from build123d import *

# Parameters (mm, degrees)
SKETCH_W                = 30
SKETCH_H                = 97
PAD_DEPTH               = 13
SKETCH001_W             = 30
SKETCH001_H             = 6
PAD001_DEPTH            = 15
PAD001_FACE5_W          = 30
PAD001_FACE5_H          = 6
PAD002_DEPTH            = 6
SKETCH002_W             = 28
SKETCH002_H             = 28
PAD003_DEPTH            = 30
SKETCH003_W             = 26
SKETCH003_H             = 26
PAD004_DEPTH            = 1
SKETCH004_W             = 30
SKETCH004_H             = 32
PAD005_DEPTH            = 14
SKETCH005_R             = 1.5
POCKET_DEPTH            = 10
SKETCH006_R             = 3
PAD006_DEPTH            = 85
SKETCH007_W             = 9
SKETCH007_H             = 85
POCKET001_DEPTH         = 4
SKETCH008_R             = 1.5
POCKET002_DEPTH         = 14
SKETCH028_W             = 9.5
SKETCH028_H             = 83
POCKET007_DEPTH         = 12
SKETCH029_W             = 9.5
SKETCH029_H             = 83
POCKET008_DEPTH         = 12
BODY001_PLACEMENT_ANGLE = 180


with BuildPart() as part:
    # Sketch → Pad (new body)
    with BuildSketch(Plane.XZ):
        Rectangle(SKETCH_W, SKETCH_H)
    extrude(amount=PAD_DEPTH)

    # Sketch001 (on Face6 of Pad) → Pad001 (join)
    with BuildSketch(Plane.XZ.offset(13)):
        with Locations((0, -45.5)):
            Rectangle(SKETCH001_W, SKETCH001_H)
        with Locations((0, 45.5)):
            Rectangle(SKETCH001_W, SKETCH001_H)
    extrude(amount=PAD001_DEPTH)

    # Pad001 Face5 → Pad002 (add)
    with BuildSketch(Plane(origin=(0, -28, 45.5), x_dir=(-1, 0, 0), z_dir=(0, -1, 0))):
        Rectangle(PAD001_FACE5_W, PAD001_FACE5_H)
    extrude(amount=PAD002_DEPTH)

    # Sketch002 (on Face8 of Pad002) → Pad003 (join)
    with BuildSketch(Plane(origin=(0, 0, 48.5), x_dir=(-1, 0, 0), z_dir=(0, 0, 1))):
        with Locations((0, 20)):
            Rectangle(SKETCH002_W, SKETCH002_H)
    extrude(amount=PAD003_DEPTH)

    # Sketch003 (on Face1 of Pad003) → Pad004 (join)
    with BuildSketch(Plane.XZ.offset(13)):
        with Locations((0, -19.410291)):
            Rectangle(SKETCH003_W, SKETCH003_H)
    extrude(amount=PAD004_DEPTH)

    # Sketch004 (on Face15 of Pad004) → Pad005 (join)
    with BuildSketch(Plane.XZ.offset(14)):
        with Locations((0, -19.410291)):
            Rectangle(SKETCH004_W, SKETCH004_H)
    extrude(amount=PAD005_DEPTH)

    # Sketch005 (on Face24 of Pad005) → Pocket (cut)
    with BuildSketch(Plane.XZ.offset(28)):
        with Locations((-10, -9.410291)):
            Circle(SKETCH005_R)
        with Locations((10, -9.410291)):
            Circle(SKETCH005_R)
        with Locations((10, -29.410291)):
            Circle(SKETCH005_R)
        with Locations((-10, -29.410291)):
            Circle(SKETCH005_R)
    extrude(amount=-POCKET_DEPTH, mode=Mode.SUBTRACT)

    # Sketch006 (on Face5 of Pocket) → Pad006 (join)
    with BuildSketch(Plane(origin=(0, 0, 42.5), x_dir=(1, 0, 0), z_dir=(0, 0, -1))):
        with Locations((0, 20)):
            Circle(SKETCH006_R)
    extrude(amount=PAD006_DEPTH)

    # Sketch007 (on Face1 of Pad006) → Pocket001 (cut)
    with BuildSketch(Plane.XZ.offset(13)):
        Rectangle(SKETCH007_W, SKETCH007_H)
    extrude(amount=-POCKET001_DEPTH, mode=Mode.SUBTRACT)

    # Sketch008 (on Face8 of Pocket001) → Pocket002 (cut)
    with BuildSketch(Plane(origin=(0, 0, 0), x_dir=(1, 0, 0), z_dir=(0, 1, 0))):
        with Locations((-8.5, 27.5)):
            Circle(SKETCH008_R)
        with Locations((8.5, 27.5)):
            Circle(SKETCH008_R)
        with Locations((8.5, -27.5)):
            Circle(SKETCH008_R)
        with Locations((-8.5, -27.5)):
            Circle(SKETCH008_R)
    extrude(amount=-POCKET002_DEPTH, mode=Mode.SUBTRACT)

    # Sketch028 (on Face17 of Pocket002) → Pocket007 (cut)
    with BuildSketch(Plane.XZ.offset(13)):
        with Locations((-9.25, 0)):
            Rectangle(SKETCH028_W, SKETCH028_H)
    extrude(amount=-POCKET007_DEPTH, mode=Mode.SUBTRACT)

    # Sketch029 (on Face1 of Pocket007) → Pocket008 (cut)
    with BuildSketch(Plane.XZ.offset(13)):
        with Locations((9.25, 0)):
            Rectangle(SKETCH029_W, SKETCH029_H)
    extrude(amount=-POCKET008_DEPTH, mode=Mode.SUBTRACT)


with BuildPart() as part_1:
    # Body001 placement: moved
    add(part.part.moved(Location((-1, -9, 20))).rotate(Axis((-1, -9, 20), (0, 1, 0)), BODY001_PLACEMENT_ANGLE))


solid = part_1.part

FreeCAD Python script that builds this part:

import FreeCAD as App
import Part
import Sketcher

V = App.Vector

doc = App.newDocument("Part")
body = doc.addObject("PartDesign::Body", "Body")

# Sketch on XZ plane
sketch1 = body.newObject("Sketcher::SketchObject", "Sketch")
sketch1.AttachmentSupport = (doc.getObject("XZ_Plane"), [""])
sketch1.MapMode = "FlatFace"
sketch1.addGeometry([
    Part.LineSegment(V(-15, 48, 0), V(-15, -48, 0)),
    Part.LineSegment(V(-15, -48, 0), V(15, -48, 0)),
    Part.LineSegment(V(15, -48, 0), V(15, 48, 0)),
    Part.LineSegment(V(15, 48, 0), V(-15, 48, 0)),
], False)
sketch1.addConstraint([
    Sketcher.Constraint("Coincident", 0, 2, 1, 1),
    Sketcher.Constraint("Coincident", 1, 2, 2, 1),
    Sketcher.Constraint("Coincident", 2, 2, 3, 1),
    Sketcher.Constraint("Coincident", 3, 2, 0, 1),
    Sketcher.Constraint("Vertical", 0),
    Sketcher.Constraint("Horizontal", 1),
    Sketcher.Constraint("Vertical", 2),
    Sketcher.Constraint("Horizontal", 3),
    Sketcher.Constraint("Symmetric", 0, 2, 2, 2, -1, 1),
    Sketcher.Constraint("DistanceX", 1, 1, 1, 2, 30.0),
    Sketcher.Constraint("DistanceY", 0, 2, 0, 1, 97.0),
])
pad1 = body.newObject("PartDesign::Pad", "Pad")
pad1.Profile = sketch1
pad1.Length = 13

# Sketch on XZ plane
sketch2 = body.newObject("Sketcher::SketchObject", "Sketch001")
sketch2.AttachmentSupport = (doc.getObject("XZ_Plane"), [""])
sketch2.MapMode = "FlatFace"
sketch2.AttachmentOffset = App.Placement(V(0, 0, 13), App.Rotation())
sketch2.addGeometry([
    Part.LineSegment(V(-15, -42, 0), V(-15, -48, 0)),  # 0
    Part.LineSegment(V(-15, -48, 0), V(15, -48, 0)),  # 1
    Part.LineSegment(V(15, -48, 0), V(15, -42, 0)),  # 2
    Part.LineSegment(V(15, -42, 0), V(-15, -42, 0)),  # 3
    Part.LineSegment(V(-15, 48, 0), V(-15, 42, 0)),  # 4
    Part.LineSegment(V(-15, 42, 0), V(15, 42, 0)),  # 5
    Part.LineSegment(V(15, 42, 0), V(15, 48, 0)),  # 6
    Part.LineSegment(V(15, 48, 0), V(-15, 48, 0)),  # 7
], False)
sketch2.addConstraint([
    Sketcher.Constraint("Coincident", 0, 2, 1, 1),
    Sketcher.Constraint("Coincident", 1, 2, 2, 1),
    Sketcher.Constraint("Coincident", 2, 2, 3, 1),
    Sketcher.Constraint("Coincident", 3, 2, 0, 1),
    Sketcher.Constraint("Coincident", 4, 2, 5, 1),
    Sketcher.Constraint("Coincident", 5, 2, 6, 1),
    Sketcher.Constraint("Coincident", 6, 2, 7, 1),
    Sketcher.Constraint("Coincident", 7, 2, 4, 1),
    Sketcher.Constraint("Vertical", 0),
    Sketcher.Constraint("Horizontal", 1),
    Sketcher.Constraint("Vertical", 2),
    Sketcher.Constraint("Horizontal", 3),
    Sketcher.Constraint("Vertical", 4),
    Sketcher.Constraint("Horizontal", 5),
    Sketcher.Constraint("Vertical", 6),
    Sketcher.Constraint("Horizontal", 7),
    Sketcher.Constraint("Symmetric", 2, 2, 4, 2, -1, 1),
    Sketcher.Constraint("Symmetric", 0, 2, 6, 2, -1, 1),
    Sketcher.Constraint("Vertical", 3, 2, 4, 2),
    Sketcher.Constraint("DistanceX", 1, 1, 1, 2, 30.0),
    Sketcher.Constraint("DistanceY", 0, 2, 0, 1, 6.0),
    Sketcher.Constraint("DistanceY", 3, 2, 4, 2, 85.0),
])
pad2 = body.newObject("PartDesign::Pad", "Pad001")
pad2.Profile = sketch2
pad2.Length = 15

# Sketch on XZ plane
sketch3 = body.newObject("Sketcher::SketchObject", "Sketch002")
sketch3.AttachmentSupport = (doc.getObject("XZ_Plane"), [""])
sketch3.MapMode = "FlatFace"
sketch3.AttachmentOffset = App.Placement(V(0, 0, 28), App.Rotation())
sketch3.addGeometry([
    Part.LineSegment(V(15, 42, 0), V(15, 48, 0)),
    Part.LineSegment(V(15, 48, 0), V(-15, 48, 0)),
    Part.LineSegment(V(-15, 48, 0), V(-15, 42, 0)),
    Part.LineSegment(V(-15, 42, 0), V(15, 42, 0)),
], False)
sketch3.addConstraint([
    Sketcher.Constraint("Coincident", 0, 2, 1, 1),
    Sketcher.Constraint("Coincident", 1, 2, 2, 1),
    Sketcher.Constraint("Coincident", 2, 2, 3, 1),
    Sketcher.Constraint("Coincident", 3, 2, 0, 1),
    Sketcher.Constraint("Vertical", 0),
    Sketcher.Constraint("Horizontal", 1),
    Sketcher.Constraint("Vertical", 2),
    Sketcher.Constraint("Horizontal", 3),
    Sketcher.Constraint("DistanceX", 1, 2, 1, 1, 30.0),
    Sketcher.Constraint("DistanceY", 0, 1, 0, 2, 6.0),
    Sketcher.Constraint("DistanceX", -1, 1, 0, 2, 15.0),
    Sketcher.Constraint("DistanceY", -1, 1, 0, 2, 48.5),
])
pad3 = body.newObject("PartDesign::Pad", "Pad002")
pad3.Profile = sketch3
pad3.Length = 6

# Sketch on XY plane
sketch4 = body.newObject("Sketcher::SketchObject", "Sketch003")
sketch4.AttachmentSupport = (doc.getObject("XY_Plane"), [""])
sketch4.MapMode = "FlatFace"
sketch4.AttachmentOffset = App.Placement(V(0, 0, 48.5), App.Rotation())
sketch4.addGeometry([
    Part.LineSegment(V(14, -34, 0), V(14, -6, 0)),
    Part.LineSegment(V(14, -6, 0), V(-14, -6, 0)),
    Part.LineSegment(V(-14, -6, 0), V(-14, -34, 0)),
    Part.LineSegment(V(-14, -34, 0), V(14, -34, 0)),
], False)
sketch4.addConstraint([
    Sketcher.Constraint("Coincident", 0, 2, 1, 1),
    Sketcher.Constraint("Coincident", 1, 2, 2, 1),
    Sketcher.Constraint("Coincident", 2, 2, 3, 1),
    Sketcher.Constraint("Coincident", 3, 2, 0, 1),
    Sketcher.Constraint("Vertical", 0),
    Sketcher.Constraint("Horizontal", 1),
    Sketcher.Constraint("Vertical", 2),
    Sketcher.Constraint("Horizontal", 3),
    Sketcher.Constraint("Equal", 3, 0),
    Sketcher.Constraint("DistanceX", 1, 2, 1, 1, 28.0),
    Sketcher.Constraint("DistanceX", -1, 1, 0, 2, 14.0),
    Sketcher.Constraint("DistanceY", 0, 2, -1, 1, 6.0),
])
pad4 = body.newObject("PartDesign::Pad", "Pad003")
pad4.Profile = sketch4
pad4.Length = 30

# Sketch on XZ plane
sketch5 = body.newObject("Sketcher::SketchObject", "Sketch004")
sketch5.AttachmentSupport = (doc.getObject("XZ_Plane"), [""])
sketch5.MapMode = "FlatFace"
sketch5.AttachmentOffset = App.Placement(V(0, 0, 13), App.Rotation())
sketch5.addGeometry([
    Part.LineSegment(V(-13, -6, 0), V(-13, -32, 0)),
    Part.LineSegment(V(-13, -32, 0), V(13, -32, 0)),
    Part.LineSegment(V(13, -32, 0), V(13, -6, 0)),
    Part.LineSegment(V(13, -6, 0), V(-13, -6, 0)),
], False)
sketch5.addConstraint([
    Sketcher.Constraint("Coincident", 0, 2, 1, 1),
    Sketcher.Constraint("Coincident", 1, 2, 2, 1),
    Sketcher.Constraint("Coincident", 2, 2, 3, 1),
    Sketcher.Constraint("Coincident", 3, 2, 0, 1),
    Sketcher.Constraint("Vertical", 0),
    Sketcher.Constraint("Horizontal", 1),
    Sketcher.Constraint("Vertical", 2),
    Sketcher.Constraint("Horizontal", 3),
    Sketcher.Constraint("Equal", 3, 0),
    Sketcher.Constraint("DistanceX", 1, 1, 1, 2, 26.0),
    Sketcher.Constraint("DistanceX", 0, 2, -1, 1, 13.0),
    Sketcher.Constraint("DistanceY", 0, 2, -1, 1, 32.410291),
])
pad5 = body.newObject("PartDesign::Pad", "Pad004")
pad5.Profile = sketch5
pad5.Length = 1

# Sketch on XZ plane
sketch6 = body.newObject("Sketcher::SketchObject", "Sketch005")
sketch6.AttachmentSupport = (doc.getObject("XZ_Plane"), [""])
sketch6.MapMode = "FlatFace"
sketch6.AttachmentOffset = App.Placement(V(0, 0, 14), App.Rotation())
sketch6.addGeometry([
    Part.LineSegment(V(-15, -3, 0), V(-15, -35, 0)),
    Part.LineSegment(V(-15, -35, 0), V(15, -35, 0)),
    Part.LineSegment(V(15, -35, 0), V(15, -3, 0)),
    Part.LineSegment(V(15, -3, 0), V(-15, -3, 0)),
], False)
sketch6.addConstraint([
    Sketcher.Constraint("Coincident", 0, 2, 1, 1),
    Sketcher.Constraint("Coincident", 1, 2, 2, 1),
    Sketcher.Constraint("Coincident", 2, 2, 3, 1),
    Sketcher.Constraint("Coincident", 3, 2, 0, 1),
    Sketcher.Constraint("Vertical", 0),
    Sketcher.Constraint("Horizontal", 1),
    Sketcher.Constraint("Vertical", 2),
    Sketcher.Constraint("Horizontal", 3),
    Sketcher.Constraint("DistanceX", 1, 1, 1, 2, 30.0),
    Sketcher.Constraint("DistanceY", 0, 2, 0, 1, 32.0),
    Sketcher.Constraint("DistanceX", 0, 2, -1, 1, 15.0),
    Sketcher.Constraint("DistanceY", 0, 2, -1, 1, 35.410291),
])
pad6 = body.newObject("PartDesign::Pad", "Pad005")
pad6.Profile = sketch6
pad6.Length = 14

# Sketch on XZ plane
sketch7 = body.newObject("Sketcher::SketchObject", "Sketch006")
sketch7.AttachmentSupport = (doc.getObject("XZ_Plane"), [""])
sketch7.MapMode = "FlatFace"
sketch7.AttachmentOffset = App.Placement(V(0, 0, 28), App.Rotation())
sketch7.addGeometry([
    Part.Circle(V(-10, -9.4, 0), V(0, 0, 1), 1.5),
    Part.Circle(V(10, -9.4, 0), V(0, 0, 1), 1.5),
    Part.Circle(V(10, -29.4, 0), V(0, 0, 1), 1.5),
    Part.Circle(V(-10, -29.4, 0), V(0, 0, 1), 1.5),
], False)
sketch7.addConstraint([
    Sketcher.Constraint("Equal", 0, 1),
    Sketcher.Constraint("Equal", 1, 2),
    Sketcher.Constraint("Equal", 2, 3),
    Sketcher.Constraint("Symmetric", 0, 3, 1, 3, -2),
    Sketcher.Constraint("Symmetric", 2, 3, 3, 3, -2),
    Sketcher.Constraint("Vertical", 1, 3, 2, 3),
    Sketcher.Constraint("Diameter", 0, 3.0),
    Sketcher.Constraint("DistanceX", 0, 3, -1, 1, 10.0),
    Sketcher.Constraint("DistanceY", 2, 3, 1, 3, 20.0),
    Sketcher.Constraint("DistanceY", 0, 3, -1, 1, 9.410291),
])
pocket1 = body.newObject("PartDesign::Pocket", "Pocket")
pocket1.Profile = sketch7
pocket1.Length = 10

# Sketch on XY plane
sketch8 = body.newObject("Sketcher::SketchObject", "Sketch007")
sketch8.AttachmentSupport = (doc.getObject("XY_Plane"), [""])
sketch8.MapMode = "FlatFace"
sketch8.AttachmentOffset = App.Placement(V(0, 0, 42.5), App.Rotation())
sketch8.addGeometry(Part.Circle(V(0, -20, 0), V(0, 0, 1), 3), False)
sketch8.addConstraint([
    Sketcher.Constraint("PointOnObject", 0, 3, -2),
    Sketcher.Constraint("Diameter", 0, 6.0),
    Sketcher.Constraint("DistanceY", 0, 3, -1, 1, 20.0),
])
pad7 = body.newObject("PartDesign::Pad", "Pad006")
pad7.Profile = sketch8
pad7.Length = 85
pad7.Reversed = True

# Sketch on XZ plane
sketch9 = body.newObject("Sketcher::SketchObject", "Sketch008")
sketch9.AttachmentSupport = (doc.getObject("XZ_Plane"), [""])
sketch9.MapMode = "FlatFace"
sketch9.AttachmentOffset = App.Placement(V(0, 0, 13), App.Rotation())
sketch9.addGeometry([
    Part.LineSegment(V(-4, 42, 0), V(-4, -42, 0)),
    Part.LineSegment(V(-4, -42, 0), V(4, -42, 0)),
    Part.LineSegment(V(4, -42, 0), V(4, 42, 0)),
    Part.LineSegment(V(4, 42, 0), V(-4, 42, 0)),
], False)
sketch9.addConstraint([
    Sketcher.Constraint("Coincident", 0, 2, 1, 1),
    Sketcher.Constraint("Coincident", 1, 2, 2, 1),
    Sketcher.Constraint("Coincident", 2, 2, 3, 1),
    Sketcher.Constraint("Coincident", 3, 2, 0, 1),
    Sketcher.Constraint("Vertical", 0),
    Sketcher.Constraint("Horizontal", 1),
    Sketcher.Constraint("Vertical", 2),
    Sketcher.Constraint("Horizontal", 3),
    Sketcher.Constraint("Symmetric", 0, 2, 2, 2, -1, 1),
    Sketcher.Constraint("DistanceX", 1, 1, 1, 2, 9.0),
    Sketcher.Constraint("DistanceY", 0, 2, 0, 1, 85.0),
])
pocket2 = body.newObject("PartDesign::Pocket", "Pocket001")
pocket2.Profile = sketch9
pocket2.Length = 4

# Sketch on XZ plane
sketch10 = body.newObject("Sketcher::SketchObject", "Sketch009")
sketch10.AttachmentSupport = (doc.getObject("XZ_Plane"), [""])
sketch10.MapMode = "FlatFace"
sketch10.addGeometry([
    Part.Circle(V(-8.5, -27.5, 0), V(0, 0, 1), 1.5),
    Part.Circle(V(8.5, -27.5, 0), V(0, 0, 1), 1.5),
    Part.Circle(V(8.5, 27.5, 0), V(0, 0, 1), 1.5),
    Part.Circle(V(-8.5, 27.5, 0), V(0, 0, 1), 1.5),
], False)
sketch10.addConstraint([
    Sketcher.Constraint("Equal", 0, 1),
    Sketcher.Constraint("Equal", 1, 2),
    Sketcher.Constraint("Equal", 2, 3),
    Sketcher.Constraint("Symmetric", 0, 3, 2, 3, -1, 1),
    Sketcher.Constraint("Symmetric", 1, 3, 3, 3, -1, 1),
    Sketcher.Constraint("Symmetric", 0, 3, 1, 3, -2),
    Sketcher.Constraint("Diameter", 0, 3.0),
    Sketcher.Constraint("DistanceX", 0, 3, 1, 3, 17.0),
    Sketcher.Constraint("DistanceY", 1, 3, 2, 3, 55.0),
])
pocket3 = body.newObject("PartDesign::Pocket", "Pocket002")
pocket3.Profile = sketch10
pocket3.Length = 14
pocket3.Reversed = True

# Sketch on XZ plane
sketch11 = body.newObject("Sketcher::SketchObject", "Sketch010")
sketch11.AttachmentSupport = (doc.getObject("XZ_Plane"), [""])
sketch11.MapMode = "FlatFace"
sketch11.AttachmentOffset = App.Placement(V(0, 0, 13), App.Rotation())
sketch11.addGeometry([
    Part.LineSegment(V(-14, 42, 0), V(-14, -42, 0)),
    Part.LineSegment(V(-14, -42, 0), V(-4, -42, 0)),
    Part.LineSegment(V(-4, -42, 0), V(-4, 42, 0)),
    Part.LineSegment(V(-4, 42, 0), V(-14, 42, 0)),
], False)
sketch11.addConstraint([
    Sketcher.Constraint("Coincident", 0, 2, 1, 1),
    Sketcher.Constraint("Coincident", 1, 2, 2, 1),
    Sketcher.Constraint("Coincident", 2, 2, 3, 1),
    Sketcher.Constraint("Coincident", 3, 2, 0, 1),
    Sketcher.Constraint("Vertical", 0),
    Sketcher.Constraint("Horizontal", 1),
    Sketcher.Constraint("Vertical", 2),
    Sketcher.Constraint("Horizontal", 3),
    Sketcher.Constraint("DistanceY", 0, 2, 0, 1, 83.0),
    Sketcher.Constraint("DistanceX", 1, 1, 1, 2, 9.5),
    Sketcher.Constraint("DistanceX", 0, 2, -1, 1, 14.0),
    Sketcher.Constraint("DistanceY", 0, 2, -1, 1, 41.5),
])
pocket4 = body.newObject("PartDesign::Pocket", "Pocket003")
pocket4.Profile = sketch11
pocket4.Length = 12

# Sketch on XZ plane
sketch12 = body.newObject("Sketcher::SketchObject", "Sketch011")
sketch12.AttachmentSupport = (doc.getObject("XZ_Plane"), [""])
sketch12.MapMode = "FlatFace"
sketch12.AttachmentOffset = App.Placement(V(0, 0, 13), App.Rotation())
sketch12.addGeometry([
    Part.LineSegment(V(4, 42, 0), V(4, -42, 0)),
    Part.LineSegment(V(4, -42, 0), V(14, -42, 0)),
    Part.LineSegment(V(14, -42, 0), V(14, 42, 0)),
    Part.LineSegment(V(14, 42, 0), V(4, 42, 0)),
], False)
sketch12.addConstraint([
    Sketcher.Constraint("Coincident", 0, 2, 1, 1),
    Sketcher.Constraint("Coincident", 1, 2, 2, 1),
    Sketcher.Constraint("Coincident", 2, 2, 3, 1),
    Sketcher.Constraint("Coincident", 3, 2, 0, 1),
    Sketcher.Constraint("Vertical", 0),
    Sketcher.Constraint("Horizontal", 1),
    Sketcher.Constraint("Vertical", 2),
    Sketcher.Constraint("Horizontal", 3),
    Sketcher.Constraint("DistanceY", 0, 2, 0, 1, 83.0),
    Sketcher.Constraint("DistanceX", 1, 1, 1, 2, 9.5),
    Sketcher.Constraint("DistanceX", -1, 1, 1, 2, 14.0),
    Sketcher.Constraint("DistanceY", 0, 2, -1, 1, 41.5),
])
pocket5 = body.newObject("PartDesign::Pocket", "Pocket004")
pocket5.Profile = sketch12
pocket5.Length = 12
body2 = doc.addObject("PartDesign::Body", "Body001")
doc.recompute()

body.Placement = App.Placement(V(-1, -9, 20), App.Rotation(V(0, 1, 0), 180))
boolean = body2.newObject("PartDesign::Boolean", "Boolean")
boolean.Type = "Fuse"
boolean.addObjects([body])

doc.recompute()
